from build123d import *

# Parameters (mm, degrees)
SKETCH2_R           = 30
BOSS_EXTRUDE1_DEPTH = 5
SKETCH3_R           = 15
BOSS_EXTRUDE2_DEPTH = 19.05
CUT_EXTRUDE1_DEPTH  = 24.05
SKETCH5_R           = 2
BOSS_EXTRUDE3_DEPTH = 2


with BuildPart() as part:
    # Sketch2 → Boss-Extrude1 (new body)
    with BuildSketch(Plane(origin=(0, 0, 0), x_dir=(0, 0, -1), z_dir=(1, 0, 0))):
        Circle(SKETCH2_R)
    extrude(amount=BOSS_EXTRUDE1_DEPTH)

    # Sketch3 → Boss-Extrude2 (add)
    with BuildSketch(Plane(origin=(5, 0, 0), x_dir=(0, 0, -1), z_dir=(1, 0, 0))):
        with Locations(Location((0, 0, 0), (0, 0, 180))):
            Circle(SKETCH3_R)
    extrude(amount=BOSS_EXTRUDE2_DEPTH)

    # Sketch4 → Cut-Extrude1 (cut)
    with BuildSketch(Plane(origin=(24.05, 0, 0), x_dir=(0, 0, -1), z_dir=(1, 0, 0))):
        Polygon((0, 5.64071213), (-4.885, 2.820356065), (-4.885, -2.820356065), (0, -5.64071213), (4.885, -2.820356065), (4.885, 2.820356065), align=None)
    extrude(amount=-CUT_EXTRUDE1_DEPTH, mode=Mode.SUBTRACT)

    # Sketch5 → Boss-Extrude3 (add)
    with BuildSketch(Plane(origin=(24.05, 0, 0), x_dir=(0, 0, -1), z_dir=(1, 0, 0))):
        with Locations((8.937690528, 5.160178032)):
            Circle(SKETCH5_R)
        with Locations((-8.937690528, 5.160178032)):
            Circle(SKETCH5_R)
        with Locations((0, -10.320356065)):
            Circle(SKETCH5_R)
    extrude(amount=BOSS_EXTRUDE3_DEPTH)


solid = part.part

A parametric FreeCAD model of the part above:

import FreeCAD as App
import Part
import Sketcher
from FreeCAD import Vector
Q = App.Units.Quantity

doc = App.newDocument("Part")
body = doc.addObject("PartDesign::Body", "Body")

sketch1 = doc.addObject("Sketcher::SketchObject", "Sketch")
body.addObject(sketch1)
sketch1.AttachmentSupport = (doc.YZ_Plane, [""])
sketch1.MapMode = "FlatFace"
sketch1.addGeometry(Part.Circle(Vector(0, 0, 0), Vector(0, 0, 1), 30), False)
sketch1.addConstraint([
    Sketcher.Constraint("Coincident", 0, 3, -1, 1),
    Sketcher.Constraint("Diameter", 0, Q("60 mm")),
])
pad1 = doc.addObject("PartDesign::Pad", "Pad")
body.addObject(pad1)
pad1.Profile = sketch1
pad1.Length = 5

sketch2 = doc.addObject("Sketcher::SketchObject", "Sketch001")
body.addObject(sketch2)
sketch2.AttachmentSupport = (doc.YZ_Plane, [""])
sketch2.MapMode = "FlatFace"
sketch2.AttachmentOffset = App.Placement(Vector(0, 0, 5), App.Rotation())
sketch2.addGeometry(Part.Circle(Vector(0, 0, 0), Vector(0, 0, 1), 15), False)
sketch2.addConstraint([
    Sketcher.Constraint("Coincident", 0, 3, -1, 1),
    Sketcher.Constraint("Diameter", 0, Q("30 mm")),
])
pad2 = doc.addObject("PartDesign::Pad", "Pad001")
body.addObject(pad2)
pad2.Profile = sketch2
pad2.Length = 19.05

sketch3 = doc.addObject("Sketcher::SketchObject", "Sketch002")
body.addObject(sketch3)
sketch3.AttachmentSupport = (doc.YZ_Plane, [""])
sketch3.MapMode = "FlatFace"
sketch3.AttachmentOffset = App.Placement(Vector(0, 0, 24.05), App.Rotation())
sketch3.addGeometry([
    Part.LineSegment(Vector(5.640712, 0, 0), Vector(2.820356, 4.885, 0)),
    Part.LineSegment(Vector(2.820356, 4.885, 0), Vector(-2.820356, 4.885, 0)),
    Part.LineSegment(Vector(-2.820356, 4.885, 0), Vector(-5.640712, 0, 0)),
    Part.LineSegment(Vector(-5.640712, 0, 0), Vector(-2.820356, -4.885, 0)),
    Part.LineSegment(Vector(-2.820356, -4.885, 0), Vector(2.820356, -4.885, 0)),
    Part.LineSegment(Vector(2.820356, -4.885, 0), Vector(5.640712, 0, 0)),
], False)
sketch3.addConstraint([
    Sketcher.Constraint("Coincident", 0, 2, 1, 1),
    Sketcher.Constraint("Coincident", 1, 2, 2, 1),
    Sketcher.Constraint("Coincident", 2, 2, 3, 1),
    Sketcher.Constraint("Coincident", 3, 2, 4, 1),
    Sketcher.Constraint("Coincident", 4, 2, 5, 1),
    Sketcher.Constraint("Coincident", 5, 2, 0, 1),
    Sketcher.Constraint("Horizontal", 1),
    Sketcher.Constraint("Horizontal", 4),
    Sketcher.Constraint("Symmetric", 0, 2, 3, 2, -1, 1),
    Sketcher.Constraint("Symmetric", 2, 2, 5, 2, -1, 1),
    Sketcher.Constraint("PointOnObject", 2, 2, -1),
    Sketcher.Constraint("Parallel", 2, 5),
    Sketcher.Constraint("Vertical", 1, 2, 3, 2),
    Sketcher.Constraint("Angle", 0, Q("120 deg")),
    Sketcher.Constraint("DistanceY", 3, 2, 1, 2, Q("9.77 mm")),
    Sketcher.Constraint("DistanceX", 1, 2, 1, 1, Q("5.640712 mm")),
])
pocket1 = doc.addObject("PartDesign::Pocket", "Pocket")
body.addObject(pocket1)
pocket1.Profile = sketch3
pocket1.Length = 24.05

sketch4 = doc.addObject("Sketcher::SketchObject", "Sketch003")
body.addObject(sketch4)
sketch4.AttachmentSupport = (doc.YZ_Plane, [""])
sketch4.MapMode = "FlatFace"
sketch4.AttachmentOffset = App.Placement(Vector(0, 0, 24.05), App.Rotation())
sketch4.addGeometry([
    Part.Circle(Vector(5.160178, -8.937691, 0), Vector(0, 0, 1), 2),
    Part.Circle(Vector(5.160178, 8.937691, 0), Vector(0, 0, 1), 2),
    Part.Circle(Vector(-10.320356, 0, 0), Vector(0, 0, 1), 2),
], False)
sketch4.addConstraint([
    Sketcher.Constraint("Equal", 0, 1),
    Sketcher.Constraint("Equal", 1, 2),
    Sketcher.Constraint("Symmetric", 0, 3, 1, 3, -1),
    Sketcher.Constraint("PointOnObject", 2, 3, -1),
    Sketcher.Constraint("Diameter", 0, Q("4 mm")),
    Sketcher.Constraint("DistanceX", -1, 1, 0, 3, Q("5.160178 mm")),
    Sketcher.Constraint("DistanceY", 0, 3, -1, 1, Q("8.937691 mm")),
    Sketcher.Constraint("DistanceX", 2, 3, -1, 1, Q("10.320356 mm")),
])
pad3 = doc.addObject("PartDesign::Pad", "Pad002")
body.addObject(pad3)
pad3.Profile = sketch4
pad3.Length = 2

doc.recompute()
